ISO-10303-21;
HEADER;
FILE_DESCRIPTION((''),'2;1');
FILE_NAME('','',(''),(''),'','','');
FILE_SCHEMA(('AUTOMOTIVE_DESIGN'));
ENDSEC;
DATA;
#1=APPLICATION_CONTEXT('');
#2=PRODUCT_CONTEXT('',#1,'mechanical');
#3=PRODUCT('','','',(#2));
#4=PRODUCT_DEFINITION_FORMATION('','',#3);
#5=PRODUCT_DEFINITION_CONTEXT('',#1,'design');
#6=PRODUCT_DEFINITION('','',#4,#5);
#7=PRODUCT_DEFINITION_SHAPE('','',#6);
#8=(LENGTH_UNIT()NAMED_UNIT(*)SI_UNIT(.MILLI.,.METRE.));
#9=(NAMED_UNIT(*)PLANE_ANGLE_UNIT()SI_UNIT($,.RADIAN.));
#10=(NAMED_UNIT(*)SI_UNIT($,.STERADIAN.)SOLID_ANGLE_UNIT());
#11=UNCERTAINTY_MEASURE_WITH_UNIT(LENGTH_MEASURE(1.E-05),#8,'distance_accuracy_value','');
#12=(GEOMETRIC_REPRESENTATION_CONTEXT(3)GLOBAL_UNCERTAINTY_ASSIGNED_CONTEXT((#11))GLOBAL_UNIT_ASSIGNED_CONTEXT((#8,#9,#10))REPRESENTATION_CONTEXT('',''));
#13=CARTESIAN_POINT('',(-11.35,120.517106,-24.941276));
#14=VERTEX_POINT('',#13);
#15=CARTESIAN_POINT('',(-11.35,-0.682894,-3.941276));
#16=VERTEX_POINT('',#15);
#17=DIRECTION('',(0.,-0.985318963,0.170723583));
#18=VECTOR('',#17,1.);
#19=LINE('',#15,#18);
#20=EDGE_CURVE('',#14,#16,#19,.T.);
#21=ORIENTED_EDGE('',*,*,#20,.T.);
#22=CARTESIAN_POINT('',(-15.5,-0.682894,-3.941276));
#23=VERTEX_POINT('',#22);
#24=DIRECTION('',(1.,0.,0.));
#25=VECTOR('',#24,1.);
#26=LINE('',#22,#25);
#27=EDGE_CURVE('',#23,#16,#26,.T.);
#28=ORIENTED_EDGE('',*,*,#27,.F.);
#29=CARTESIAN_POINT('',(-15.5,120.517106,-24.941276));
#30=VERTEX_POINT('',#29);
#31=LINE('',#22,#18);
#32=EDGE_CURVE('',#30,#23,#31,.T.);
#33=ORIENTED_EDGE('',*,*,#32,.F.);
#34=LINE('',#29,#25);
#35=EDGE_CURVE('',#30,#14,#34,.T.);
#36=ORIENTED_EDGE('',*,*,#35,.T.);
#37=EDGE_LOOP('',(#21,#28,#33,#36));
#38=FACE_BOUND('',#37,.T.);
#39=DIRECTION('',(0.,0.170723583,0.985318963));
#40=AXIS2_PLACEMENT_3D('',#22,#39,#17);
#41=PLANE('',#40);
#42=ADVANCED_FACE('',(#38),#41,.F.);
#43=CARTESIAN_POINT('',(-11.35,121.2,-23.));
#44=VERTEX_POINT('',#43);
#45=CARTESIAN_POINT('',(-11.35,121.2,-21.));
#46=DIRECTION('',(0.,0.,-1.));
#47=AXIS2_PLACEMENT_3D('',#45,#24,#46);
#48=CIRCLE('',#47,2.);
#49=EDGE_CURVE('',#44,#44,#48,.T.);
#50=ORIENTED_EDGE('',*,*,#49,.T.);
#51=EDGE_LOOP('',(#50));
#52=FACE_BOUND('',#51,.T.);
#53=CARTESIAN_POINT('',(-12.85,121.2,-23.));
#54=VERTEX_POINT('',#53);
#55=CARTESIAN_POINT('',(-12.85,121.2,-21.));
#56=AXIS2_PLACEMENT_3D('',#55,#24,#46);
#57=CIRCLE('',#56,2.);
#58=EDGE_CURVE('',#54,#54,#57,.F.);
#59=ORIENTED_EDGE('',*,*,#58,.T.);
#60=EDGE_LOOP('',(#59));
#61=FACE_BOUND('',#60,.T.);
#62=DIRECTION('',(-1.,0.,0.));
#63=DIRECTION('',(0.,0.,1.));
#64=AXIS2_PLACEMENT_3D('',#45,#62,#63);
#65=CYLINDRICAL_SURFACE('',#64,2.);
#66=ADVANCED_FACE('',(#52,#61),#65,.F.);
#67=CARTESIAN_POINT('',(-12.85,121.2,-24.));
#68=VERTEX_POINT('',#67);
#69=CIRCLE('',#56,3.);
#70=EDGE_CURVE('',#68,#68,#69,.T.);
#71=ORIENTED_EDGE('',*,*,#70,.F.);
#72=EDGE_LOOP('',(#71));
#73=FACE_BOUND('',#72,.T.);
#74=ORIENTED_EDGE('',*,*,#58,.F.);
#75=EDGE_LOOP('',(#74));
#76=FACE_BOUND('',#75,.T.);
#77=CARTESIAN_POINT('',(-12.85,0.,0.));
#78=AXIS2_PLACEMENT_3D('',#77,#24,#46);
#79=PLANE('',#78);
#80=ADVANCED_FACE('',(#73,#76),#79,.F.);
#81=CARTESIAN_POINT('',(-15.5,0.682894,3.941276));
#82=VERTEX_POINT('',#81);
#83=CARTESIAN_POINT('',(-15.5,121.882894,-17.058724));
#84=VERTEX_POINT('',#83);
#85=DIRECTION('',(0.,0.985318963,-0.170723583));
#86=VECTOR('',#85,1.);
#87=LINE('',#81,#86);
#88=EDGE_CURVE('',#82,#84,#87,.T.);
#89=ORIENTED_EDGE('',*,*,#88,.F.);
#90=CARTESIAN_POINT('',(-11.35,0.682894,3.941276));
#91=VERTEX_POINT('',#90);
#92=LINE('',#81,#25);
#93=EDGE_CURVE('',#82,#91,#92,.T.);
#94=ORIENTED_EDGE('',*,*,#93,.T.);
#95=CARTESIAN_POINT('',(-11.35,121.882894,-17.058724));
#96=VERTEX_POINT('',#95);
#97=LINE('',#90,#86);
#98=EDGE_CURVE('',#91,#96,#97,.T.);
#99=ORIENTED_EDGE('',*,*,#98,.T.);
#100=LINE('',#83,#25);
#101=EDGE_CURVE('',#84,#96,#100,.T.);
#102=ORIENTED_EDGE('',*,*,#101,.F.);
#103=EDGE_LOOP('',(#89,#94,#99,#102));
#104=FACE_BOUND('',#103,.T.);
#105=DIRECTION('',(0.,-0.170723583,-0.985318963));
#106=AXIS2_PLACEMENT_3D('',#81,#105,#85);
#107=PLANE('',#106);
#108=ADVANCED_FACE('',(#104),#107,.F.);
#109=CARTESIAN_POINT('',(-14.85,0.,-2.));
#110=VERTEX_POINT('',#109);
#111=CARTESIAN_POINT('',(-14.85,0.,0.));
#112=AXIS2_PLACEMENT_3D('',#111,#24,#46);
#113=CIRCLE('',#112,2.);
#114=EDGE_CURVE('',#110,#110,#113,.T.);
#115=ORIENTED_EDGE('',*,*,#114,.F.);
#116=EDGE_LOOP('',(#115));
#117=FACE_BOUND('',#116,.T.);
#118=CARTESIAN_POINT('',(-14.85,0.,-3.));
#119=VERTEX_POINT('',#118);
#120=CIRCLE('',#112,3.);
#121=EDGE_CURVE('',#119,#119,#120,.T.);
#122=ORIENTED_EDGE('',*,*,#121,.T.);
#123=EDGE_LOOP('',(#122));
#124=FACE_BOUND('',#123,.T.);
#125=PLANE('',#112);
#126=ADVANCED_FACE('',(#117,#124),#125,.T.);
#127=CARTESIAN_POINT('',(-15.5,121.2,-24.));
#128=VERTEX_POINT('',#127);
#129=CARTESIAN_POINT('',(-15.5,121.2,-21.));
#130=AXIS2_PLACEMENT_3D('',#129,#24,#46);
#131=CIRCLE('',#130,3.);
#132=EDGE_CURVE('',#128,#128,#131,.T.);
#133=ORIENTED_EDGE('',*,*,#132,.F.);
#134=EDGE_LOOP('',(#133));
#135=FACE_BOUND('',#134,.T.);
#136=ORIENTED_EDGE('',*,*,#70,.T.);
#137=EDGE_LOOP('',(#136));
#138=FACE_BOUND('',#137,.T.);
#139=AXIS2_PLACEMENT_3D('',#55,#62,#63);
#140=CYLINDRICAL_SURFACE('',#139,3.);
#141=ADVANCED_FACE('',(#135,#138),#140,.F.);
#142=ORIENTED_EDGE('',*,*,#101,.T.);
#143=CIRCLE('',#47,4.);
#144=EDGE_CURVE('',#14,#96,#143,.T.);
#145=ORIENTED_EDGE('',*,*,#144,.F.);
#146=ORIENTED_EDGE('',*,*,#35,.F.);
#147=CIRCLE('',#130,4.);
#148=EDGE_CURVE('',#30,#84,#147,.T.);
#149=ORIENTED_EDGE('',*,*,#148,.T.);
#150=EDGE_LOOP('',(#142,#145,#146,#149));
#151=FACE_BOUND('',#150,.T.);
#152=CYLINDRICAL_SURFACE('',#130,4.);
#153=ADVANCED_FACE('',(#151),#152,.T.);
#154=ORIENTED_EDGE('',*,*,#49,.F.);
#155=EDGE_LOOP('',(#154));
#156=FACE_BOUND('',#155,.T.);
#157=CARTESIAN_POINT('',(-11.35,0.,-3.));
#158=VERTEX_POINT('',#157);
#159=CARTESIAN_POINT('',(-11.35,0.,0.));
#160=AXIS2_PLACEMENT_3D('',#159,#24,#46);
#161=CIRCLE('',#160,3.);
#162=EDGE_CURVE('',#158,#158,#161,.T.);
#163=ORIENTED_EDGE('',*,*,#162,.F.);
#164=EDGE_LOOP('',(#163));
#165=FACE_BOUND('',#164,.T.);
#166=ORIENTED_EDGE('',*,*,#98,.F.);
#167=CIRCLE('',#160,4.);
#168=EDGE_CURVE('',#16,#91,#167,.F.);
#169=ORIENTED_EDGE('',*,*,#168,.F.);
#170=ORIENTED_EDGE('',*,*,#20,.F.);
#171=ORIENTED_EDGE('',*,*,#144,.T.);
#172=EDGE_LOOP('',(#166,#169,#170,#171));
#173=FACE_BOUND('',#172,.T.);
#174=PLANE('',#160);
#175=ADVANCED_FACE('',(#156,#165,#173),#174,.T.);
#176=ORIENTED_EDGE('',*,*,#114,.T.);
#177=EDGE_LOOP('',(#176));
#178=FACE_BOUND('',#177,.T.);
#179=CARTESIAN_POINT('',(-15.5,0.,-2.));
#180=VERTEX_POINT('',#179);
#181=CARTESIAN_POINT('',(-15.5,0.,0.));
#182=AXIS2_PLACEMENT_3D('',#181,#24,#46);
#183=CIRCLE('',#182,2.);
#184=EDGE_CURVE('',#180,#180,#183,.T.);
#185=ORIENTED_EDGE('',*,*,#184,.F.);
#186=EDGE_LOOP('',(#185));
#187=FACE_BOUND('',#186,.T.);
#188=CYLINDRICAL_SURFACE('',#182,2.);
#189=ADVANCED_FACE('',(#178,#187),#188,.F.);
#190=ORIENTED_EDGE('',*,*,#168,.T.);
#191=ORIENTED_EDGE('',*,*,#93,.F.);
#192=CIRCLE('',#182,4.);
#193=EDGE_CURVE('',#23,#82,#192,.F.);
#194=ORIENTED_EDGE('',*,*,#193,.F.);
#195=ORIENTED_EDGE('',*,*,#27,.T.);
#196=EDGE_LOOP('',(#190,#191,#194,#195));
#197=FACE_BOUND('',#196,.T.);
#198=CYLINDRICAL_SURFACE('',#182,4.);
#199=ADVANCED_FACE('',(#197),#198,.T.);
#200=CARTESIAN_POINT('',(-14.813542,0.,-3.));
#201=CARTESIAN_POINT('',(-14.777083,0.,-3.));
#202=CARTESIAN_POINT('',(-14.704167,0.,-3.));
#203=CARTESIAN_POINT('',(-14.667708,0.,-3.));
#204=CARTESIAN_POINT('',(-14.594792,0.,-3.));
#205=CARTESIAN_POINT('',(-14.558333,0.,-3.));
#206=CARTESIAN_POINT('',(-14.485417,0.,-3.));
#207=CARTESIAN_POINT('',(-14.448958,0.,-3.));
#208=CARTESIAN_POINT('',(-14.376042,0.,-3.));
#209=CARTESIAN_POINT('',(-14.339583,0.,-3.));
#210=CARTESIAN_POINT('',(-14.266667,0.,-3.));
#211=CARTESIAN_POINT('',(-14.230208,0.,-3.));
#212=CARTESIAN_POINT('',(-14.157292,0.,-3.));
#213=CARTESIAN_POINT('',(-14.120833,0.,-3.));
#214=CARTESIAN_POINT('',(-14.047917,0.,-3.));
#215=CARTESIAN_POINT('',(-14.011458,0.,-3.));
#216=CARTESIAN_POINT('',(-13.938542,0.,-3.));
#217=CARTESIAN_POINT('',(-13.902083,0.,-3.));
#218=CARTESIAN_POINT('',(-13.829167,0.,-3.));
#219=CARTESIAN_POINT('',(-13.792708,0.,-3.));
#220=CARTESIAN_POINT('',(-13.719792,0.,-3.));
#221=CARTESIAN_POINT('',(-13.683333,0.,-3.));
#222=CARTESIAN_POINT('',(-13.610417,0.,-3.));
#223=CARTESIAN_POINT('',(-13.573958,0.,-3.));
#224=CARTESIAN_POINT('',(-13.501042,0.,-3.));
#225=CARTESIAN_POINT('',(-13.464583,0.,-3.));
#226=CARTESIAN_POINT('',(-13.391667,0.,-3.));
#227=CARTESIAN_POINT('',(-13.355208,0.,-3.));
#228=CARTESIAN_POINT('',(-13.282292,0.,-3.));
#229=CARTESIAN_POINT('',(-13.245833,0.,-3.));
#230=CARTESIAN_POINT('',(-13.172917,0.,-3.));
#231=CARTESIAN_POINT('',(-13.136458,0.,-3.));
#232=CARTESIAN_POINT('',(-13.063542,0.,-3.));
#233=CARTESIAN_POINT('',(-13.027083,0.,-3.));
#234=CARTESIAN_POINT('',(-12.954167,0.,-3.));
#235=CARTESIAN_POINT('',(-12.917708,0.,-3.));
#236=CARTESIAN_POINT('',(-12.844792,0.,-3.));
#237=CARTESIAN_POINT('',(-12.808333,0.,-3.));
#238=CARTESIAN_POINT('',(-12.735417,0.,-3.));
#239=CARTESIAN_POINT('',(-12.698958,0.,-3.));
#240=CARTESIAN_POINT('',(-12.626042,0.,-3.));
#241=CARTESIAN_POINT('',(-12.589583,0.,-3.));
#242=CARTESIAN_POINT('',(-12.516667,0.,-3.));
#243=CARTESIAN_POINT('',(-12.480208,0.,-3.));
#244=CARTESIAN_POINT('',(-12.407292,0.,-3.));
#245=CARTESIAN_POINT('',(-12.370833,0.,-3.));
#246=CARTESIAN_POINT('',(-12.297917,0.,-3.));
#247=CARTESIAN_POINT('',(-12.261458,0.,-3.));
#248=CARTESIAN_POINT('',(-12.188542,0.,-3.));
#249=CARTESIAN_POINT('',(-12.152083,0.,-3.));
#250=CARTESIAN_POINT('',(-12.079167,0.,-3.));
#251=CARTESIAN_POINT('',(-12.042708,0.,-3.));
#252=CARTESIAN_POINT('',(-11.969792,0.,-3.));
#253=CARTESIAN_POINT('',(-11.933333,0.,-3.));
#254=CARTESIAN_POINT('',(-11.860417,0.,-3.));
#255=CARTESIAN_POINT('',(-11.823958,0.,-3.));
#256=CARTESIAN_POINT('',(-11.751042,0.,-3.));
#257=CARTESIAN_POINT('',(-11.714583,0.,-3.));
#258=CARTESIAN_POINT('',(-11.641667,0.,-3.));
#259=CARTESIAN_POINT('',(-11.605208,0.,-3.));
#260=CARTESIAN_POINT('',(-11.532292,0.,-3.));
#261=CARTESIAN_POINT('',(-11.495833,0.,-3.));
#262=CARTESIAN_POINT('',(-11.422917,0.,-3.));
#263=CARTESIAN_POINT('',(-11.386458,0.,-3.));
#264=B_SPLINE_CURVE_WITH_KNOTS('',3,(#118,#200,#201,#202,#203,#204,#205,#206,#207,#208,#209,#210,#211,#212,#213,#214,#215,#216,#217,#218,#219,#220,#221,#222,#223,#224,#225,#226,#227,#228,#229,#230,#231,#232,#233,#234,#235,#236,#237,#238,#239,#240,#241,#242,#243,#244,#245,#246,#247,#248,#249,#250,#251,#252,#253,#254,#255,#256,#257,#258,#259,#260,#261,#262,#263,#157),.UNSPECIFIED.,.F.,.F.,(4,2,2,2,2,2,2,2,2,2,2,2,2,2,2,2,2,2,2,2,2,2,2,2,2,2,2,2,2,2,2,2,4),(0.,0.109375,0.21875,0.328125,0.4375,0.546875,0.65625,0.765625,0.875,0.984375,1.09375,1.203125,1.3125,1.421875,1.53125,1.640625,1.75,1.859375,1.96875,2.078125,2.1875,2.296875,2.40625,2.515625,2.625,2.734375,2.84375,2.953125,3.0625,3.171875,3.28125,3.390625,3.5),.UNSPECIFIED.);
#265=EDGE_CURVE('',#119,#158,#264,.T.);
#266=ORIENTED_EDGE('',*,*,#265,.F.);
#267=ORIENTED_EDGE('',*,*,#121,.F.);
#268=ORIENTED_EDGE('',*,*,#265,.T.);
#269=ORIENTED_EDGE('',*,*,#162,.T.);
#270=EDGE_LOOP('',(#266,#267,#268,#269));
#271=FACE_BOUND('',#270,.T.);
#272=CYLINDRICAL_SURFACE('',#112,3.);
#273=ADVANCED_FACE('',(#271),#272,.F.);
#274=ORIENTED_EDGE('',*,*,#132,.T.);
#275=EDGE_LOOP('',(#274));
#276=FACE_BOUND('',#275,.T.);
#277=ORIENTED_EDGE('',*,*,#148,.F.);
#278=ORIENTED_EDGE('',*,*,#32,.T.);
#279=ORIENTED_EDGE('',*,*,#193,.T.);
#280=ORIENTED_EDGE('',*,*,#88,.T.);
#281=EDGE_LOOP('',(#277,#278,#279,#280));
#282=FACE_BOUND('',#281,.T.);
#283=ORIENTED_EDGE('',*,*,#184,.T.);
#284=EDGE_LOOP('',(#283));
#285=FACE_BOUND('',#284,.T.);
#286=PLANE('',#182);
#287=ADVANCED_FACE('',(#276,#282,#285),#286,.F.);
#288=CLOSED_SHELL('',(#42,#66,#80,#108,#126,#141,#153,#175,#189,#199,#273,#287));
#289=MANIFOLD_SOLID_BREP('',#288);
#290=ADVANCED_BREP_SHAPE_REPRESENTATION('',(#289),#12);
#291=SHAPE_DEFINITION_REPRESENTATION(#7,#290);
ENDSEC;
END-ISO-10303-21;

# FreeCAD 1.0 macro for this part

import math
import FreeCAD as App
import Part
import Sketcher
from FreeCAD import Vector

doc = App.newDocument("Part")
body = doc.addObject("PartDesign::Body", "Body")

# Sketch on YZ plane
sketch1 = body.newObject("Sketcher::SketchObject", "Sketch")
sketch1.AttachmentSupport = (doc.getObject("YZ_Plane"), [""])
sketch1.MapMode = "FlatFace"
sketch1.AttachmentOffset = App.Placement(Vector(0, 0, -11.35), App.Rotation())
sketch1.addGeometry([
    Part.LineSegment(Vector(-0.682894, -3.941276, 0), Vector(120.517106, -24.941276, 0)),  # 0
    Part.ArcOfCircle(Part.Circle(Vector(121.2, -21, 0), Vector(0, 0, 1), 4), math.radians(-99.829892), math.radians(80.170108)),  # 1
    Part.LineSegment(Vector(121.882894, -17.058724, 0), Vector(0.682894, 3.941276, 0)),  # 2
    Part.ArcOfCircle(Part.Circle(Vector(0, 0, 0), Vector(0, 0, 1), 4), math.radians(80.170108), math.radians(260.170108)),  # 3
    Part.Circle(Vector(0, 0, 0), Vector(0, 0, 1), 2),  # 4
], False)
sketch1.addConstraint([
    Sketcher.Constraint("Tangent", 0, 2, 1, 1),
    Sketcher.Constraint("Tangent", 1, 2, 2, 1),
    Sketcher.Constraint("Tangent", 2, 2, 3, 1),
    Sketcher.Constraint("Tangent", 3, 2, 0, 1),
    Sketcher.Constraint("Coincident", 3, 3, -1, 1),
    Sketcher.Constraint("Coincident", 4, 3, -1, 1),
    Sketcher.Constraint("Equal", 1, 3),
    Sketcher.Constraint("Diameter", 4, 4.0),
    Sketcher.Constraint("Radius", 1, 4.0),
    Sketcher.Constraint("DistanceY", 1, 3, -1, 1, 21.0),
    Sketcher.Constraint("DistanceX", -1, 1, 1, 3, 121.2),
])
pad1 = body.newObject("PartDesign::Pad", "Pad")
pad1.Profile = sketch1
pad1.Length = 4.15
pad1.Reversed = True

# Sketch on YZ plane
sketch2 = body.newObject("Sketcher::SketchObject", "Sketch001")
sketch2.AttachmentSupport = (doc.getObject("YZ_Plane"), [""])
sketch2.MapMode = "FlatFace"
sketch2.AttachmentOffset = App.Placement(Vector(0, 0, -15.5), App.Rotation())
sketch2.addGeometry(Part.Circle(Vector(121.2, -21, 0), Vector(0, 0, 1), 3), False)
sketch2.addConstraint([
    Sketcher.Constraint("Diameter", 0, 6.0),
    Sketcher.Constraint("DistanceY", 0, 3, -1, 1, 21.0),
    Sketcher.Constraint("DistanceX", -1, 1, 0, 3, 121.2),
])
pocket1 = body.newObject("PartDesign::Pocket", "Pocket")
pocket1.Profile = sketch2
pocket1.Length = 2.65
pocket1.Reversed = True

# Sketch on YZ plane
sketch3 = body.newObject("Sketcher::SketchObject", "Sketch002")
sketch3.AttachmentSupport = (doc.getObject("YZ_Plane"), [""])
sketch3.MapMode = "FlatFace"
sketch3.AttachmentOffset = App.Placement(Vector(0, 0, -12.85), App.Rotation())
sketch3.addGeometry(Part.Circle(Vector(121.2, -21, 0), Vector(0, 0, 1), 2), False)
sketch3.addConstraint([
    Sketcher.Constraint("Diameter", 0, 4.0),
    Sketcher.Constraint("DistanceY", 0, 3, -1, 1, 21.0),
    Sketcher.Constraint("DistanceX", -1, 1, 0, 3, 121.2),
])
pocket2 = body.newObject("PartDesign::Pocket", "Pocket001")
pocket2.Profile = sketch3
pocket2.Length = 1.5
pocket2.Reversed = True

# Sketch on YZ plane
sketch4 = body.newObject("Sketcher::SketchObject", "Sketch003")
sketch4.AttachmentSupport = (doc.getObject("YZ_Plane"), [""])
sketch4.MapMode = "FlatFace"
sketch4.AttachmentOffset = App.Placement(Vector(0, 0, -14.85), App.Rotation())
sketch4.addGeometry(Part.Circle(Vector(0, 0, 0), Vector(0, 0, 1), 3), False)
sketch4.addConstraint([
    Sketcher.Constraint("Coincident", 0, 3, -1, 1),
    Sketcher.Constraint("Diameter", 0, 6.0),
])
pocket3 = body.newObject("PartDesign::Pocket", "Pocket002")
pocket3.Profile = sketch4
pocket3.Length = 3.5
pocket3.Reversed = True

doc.recompute()
